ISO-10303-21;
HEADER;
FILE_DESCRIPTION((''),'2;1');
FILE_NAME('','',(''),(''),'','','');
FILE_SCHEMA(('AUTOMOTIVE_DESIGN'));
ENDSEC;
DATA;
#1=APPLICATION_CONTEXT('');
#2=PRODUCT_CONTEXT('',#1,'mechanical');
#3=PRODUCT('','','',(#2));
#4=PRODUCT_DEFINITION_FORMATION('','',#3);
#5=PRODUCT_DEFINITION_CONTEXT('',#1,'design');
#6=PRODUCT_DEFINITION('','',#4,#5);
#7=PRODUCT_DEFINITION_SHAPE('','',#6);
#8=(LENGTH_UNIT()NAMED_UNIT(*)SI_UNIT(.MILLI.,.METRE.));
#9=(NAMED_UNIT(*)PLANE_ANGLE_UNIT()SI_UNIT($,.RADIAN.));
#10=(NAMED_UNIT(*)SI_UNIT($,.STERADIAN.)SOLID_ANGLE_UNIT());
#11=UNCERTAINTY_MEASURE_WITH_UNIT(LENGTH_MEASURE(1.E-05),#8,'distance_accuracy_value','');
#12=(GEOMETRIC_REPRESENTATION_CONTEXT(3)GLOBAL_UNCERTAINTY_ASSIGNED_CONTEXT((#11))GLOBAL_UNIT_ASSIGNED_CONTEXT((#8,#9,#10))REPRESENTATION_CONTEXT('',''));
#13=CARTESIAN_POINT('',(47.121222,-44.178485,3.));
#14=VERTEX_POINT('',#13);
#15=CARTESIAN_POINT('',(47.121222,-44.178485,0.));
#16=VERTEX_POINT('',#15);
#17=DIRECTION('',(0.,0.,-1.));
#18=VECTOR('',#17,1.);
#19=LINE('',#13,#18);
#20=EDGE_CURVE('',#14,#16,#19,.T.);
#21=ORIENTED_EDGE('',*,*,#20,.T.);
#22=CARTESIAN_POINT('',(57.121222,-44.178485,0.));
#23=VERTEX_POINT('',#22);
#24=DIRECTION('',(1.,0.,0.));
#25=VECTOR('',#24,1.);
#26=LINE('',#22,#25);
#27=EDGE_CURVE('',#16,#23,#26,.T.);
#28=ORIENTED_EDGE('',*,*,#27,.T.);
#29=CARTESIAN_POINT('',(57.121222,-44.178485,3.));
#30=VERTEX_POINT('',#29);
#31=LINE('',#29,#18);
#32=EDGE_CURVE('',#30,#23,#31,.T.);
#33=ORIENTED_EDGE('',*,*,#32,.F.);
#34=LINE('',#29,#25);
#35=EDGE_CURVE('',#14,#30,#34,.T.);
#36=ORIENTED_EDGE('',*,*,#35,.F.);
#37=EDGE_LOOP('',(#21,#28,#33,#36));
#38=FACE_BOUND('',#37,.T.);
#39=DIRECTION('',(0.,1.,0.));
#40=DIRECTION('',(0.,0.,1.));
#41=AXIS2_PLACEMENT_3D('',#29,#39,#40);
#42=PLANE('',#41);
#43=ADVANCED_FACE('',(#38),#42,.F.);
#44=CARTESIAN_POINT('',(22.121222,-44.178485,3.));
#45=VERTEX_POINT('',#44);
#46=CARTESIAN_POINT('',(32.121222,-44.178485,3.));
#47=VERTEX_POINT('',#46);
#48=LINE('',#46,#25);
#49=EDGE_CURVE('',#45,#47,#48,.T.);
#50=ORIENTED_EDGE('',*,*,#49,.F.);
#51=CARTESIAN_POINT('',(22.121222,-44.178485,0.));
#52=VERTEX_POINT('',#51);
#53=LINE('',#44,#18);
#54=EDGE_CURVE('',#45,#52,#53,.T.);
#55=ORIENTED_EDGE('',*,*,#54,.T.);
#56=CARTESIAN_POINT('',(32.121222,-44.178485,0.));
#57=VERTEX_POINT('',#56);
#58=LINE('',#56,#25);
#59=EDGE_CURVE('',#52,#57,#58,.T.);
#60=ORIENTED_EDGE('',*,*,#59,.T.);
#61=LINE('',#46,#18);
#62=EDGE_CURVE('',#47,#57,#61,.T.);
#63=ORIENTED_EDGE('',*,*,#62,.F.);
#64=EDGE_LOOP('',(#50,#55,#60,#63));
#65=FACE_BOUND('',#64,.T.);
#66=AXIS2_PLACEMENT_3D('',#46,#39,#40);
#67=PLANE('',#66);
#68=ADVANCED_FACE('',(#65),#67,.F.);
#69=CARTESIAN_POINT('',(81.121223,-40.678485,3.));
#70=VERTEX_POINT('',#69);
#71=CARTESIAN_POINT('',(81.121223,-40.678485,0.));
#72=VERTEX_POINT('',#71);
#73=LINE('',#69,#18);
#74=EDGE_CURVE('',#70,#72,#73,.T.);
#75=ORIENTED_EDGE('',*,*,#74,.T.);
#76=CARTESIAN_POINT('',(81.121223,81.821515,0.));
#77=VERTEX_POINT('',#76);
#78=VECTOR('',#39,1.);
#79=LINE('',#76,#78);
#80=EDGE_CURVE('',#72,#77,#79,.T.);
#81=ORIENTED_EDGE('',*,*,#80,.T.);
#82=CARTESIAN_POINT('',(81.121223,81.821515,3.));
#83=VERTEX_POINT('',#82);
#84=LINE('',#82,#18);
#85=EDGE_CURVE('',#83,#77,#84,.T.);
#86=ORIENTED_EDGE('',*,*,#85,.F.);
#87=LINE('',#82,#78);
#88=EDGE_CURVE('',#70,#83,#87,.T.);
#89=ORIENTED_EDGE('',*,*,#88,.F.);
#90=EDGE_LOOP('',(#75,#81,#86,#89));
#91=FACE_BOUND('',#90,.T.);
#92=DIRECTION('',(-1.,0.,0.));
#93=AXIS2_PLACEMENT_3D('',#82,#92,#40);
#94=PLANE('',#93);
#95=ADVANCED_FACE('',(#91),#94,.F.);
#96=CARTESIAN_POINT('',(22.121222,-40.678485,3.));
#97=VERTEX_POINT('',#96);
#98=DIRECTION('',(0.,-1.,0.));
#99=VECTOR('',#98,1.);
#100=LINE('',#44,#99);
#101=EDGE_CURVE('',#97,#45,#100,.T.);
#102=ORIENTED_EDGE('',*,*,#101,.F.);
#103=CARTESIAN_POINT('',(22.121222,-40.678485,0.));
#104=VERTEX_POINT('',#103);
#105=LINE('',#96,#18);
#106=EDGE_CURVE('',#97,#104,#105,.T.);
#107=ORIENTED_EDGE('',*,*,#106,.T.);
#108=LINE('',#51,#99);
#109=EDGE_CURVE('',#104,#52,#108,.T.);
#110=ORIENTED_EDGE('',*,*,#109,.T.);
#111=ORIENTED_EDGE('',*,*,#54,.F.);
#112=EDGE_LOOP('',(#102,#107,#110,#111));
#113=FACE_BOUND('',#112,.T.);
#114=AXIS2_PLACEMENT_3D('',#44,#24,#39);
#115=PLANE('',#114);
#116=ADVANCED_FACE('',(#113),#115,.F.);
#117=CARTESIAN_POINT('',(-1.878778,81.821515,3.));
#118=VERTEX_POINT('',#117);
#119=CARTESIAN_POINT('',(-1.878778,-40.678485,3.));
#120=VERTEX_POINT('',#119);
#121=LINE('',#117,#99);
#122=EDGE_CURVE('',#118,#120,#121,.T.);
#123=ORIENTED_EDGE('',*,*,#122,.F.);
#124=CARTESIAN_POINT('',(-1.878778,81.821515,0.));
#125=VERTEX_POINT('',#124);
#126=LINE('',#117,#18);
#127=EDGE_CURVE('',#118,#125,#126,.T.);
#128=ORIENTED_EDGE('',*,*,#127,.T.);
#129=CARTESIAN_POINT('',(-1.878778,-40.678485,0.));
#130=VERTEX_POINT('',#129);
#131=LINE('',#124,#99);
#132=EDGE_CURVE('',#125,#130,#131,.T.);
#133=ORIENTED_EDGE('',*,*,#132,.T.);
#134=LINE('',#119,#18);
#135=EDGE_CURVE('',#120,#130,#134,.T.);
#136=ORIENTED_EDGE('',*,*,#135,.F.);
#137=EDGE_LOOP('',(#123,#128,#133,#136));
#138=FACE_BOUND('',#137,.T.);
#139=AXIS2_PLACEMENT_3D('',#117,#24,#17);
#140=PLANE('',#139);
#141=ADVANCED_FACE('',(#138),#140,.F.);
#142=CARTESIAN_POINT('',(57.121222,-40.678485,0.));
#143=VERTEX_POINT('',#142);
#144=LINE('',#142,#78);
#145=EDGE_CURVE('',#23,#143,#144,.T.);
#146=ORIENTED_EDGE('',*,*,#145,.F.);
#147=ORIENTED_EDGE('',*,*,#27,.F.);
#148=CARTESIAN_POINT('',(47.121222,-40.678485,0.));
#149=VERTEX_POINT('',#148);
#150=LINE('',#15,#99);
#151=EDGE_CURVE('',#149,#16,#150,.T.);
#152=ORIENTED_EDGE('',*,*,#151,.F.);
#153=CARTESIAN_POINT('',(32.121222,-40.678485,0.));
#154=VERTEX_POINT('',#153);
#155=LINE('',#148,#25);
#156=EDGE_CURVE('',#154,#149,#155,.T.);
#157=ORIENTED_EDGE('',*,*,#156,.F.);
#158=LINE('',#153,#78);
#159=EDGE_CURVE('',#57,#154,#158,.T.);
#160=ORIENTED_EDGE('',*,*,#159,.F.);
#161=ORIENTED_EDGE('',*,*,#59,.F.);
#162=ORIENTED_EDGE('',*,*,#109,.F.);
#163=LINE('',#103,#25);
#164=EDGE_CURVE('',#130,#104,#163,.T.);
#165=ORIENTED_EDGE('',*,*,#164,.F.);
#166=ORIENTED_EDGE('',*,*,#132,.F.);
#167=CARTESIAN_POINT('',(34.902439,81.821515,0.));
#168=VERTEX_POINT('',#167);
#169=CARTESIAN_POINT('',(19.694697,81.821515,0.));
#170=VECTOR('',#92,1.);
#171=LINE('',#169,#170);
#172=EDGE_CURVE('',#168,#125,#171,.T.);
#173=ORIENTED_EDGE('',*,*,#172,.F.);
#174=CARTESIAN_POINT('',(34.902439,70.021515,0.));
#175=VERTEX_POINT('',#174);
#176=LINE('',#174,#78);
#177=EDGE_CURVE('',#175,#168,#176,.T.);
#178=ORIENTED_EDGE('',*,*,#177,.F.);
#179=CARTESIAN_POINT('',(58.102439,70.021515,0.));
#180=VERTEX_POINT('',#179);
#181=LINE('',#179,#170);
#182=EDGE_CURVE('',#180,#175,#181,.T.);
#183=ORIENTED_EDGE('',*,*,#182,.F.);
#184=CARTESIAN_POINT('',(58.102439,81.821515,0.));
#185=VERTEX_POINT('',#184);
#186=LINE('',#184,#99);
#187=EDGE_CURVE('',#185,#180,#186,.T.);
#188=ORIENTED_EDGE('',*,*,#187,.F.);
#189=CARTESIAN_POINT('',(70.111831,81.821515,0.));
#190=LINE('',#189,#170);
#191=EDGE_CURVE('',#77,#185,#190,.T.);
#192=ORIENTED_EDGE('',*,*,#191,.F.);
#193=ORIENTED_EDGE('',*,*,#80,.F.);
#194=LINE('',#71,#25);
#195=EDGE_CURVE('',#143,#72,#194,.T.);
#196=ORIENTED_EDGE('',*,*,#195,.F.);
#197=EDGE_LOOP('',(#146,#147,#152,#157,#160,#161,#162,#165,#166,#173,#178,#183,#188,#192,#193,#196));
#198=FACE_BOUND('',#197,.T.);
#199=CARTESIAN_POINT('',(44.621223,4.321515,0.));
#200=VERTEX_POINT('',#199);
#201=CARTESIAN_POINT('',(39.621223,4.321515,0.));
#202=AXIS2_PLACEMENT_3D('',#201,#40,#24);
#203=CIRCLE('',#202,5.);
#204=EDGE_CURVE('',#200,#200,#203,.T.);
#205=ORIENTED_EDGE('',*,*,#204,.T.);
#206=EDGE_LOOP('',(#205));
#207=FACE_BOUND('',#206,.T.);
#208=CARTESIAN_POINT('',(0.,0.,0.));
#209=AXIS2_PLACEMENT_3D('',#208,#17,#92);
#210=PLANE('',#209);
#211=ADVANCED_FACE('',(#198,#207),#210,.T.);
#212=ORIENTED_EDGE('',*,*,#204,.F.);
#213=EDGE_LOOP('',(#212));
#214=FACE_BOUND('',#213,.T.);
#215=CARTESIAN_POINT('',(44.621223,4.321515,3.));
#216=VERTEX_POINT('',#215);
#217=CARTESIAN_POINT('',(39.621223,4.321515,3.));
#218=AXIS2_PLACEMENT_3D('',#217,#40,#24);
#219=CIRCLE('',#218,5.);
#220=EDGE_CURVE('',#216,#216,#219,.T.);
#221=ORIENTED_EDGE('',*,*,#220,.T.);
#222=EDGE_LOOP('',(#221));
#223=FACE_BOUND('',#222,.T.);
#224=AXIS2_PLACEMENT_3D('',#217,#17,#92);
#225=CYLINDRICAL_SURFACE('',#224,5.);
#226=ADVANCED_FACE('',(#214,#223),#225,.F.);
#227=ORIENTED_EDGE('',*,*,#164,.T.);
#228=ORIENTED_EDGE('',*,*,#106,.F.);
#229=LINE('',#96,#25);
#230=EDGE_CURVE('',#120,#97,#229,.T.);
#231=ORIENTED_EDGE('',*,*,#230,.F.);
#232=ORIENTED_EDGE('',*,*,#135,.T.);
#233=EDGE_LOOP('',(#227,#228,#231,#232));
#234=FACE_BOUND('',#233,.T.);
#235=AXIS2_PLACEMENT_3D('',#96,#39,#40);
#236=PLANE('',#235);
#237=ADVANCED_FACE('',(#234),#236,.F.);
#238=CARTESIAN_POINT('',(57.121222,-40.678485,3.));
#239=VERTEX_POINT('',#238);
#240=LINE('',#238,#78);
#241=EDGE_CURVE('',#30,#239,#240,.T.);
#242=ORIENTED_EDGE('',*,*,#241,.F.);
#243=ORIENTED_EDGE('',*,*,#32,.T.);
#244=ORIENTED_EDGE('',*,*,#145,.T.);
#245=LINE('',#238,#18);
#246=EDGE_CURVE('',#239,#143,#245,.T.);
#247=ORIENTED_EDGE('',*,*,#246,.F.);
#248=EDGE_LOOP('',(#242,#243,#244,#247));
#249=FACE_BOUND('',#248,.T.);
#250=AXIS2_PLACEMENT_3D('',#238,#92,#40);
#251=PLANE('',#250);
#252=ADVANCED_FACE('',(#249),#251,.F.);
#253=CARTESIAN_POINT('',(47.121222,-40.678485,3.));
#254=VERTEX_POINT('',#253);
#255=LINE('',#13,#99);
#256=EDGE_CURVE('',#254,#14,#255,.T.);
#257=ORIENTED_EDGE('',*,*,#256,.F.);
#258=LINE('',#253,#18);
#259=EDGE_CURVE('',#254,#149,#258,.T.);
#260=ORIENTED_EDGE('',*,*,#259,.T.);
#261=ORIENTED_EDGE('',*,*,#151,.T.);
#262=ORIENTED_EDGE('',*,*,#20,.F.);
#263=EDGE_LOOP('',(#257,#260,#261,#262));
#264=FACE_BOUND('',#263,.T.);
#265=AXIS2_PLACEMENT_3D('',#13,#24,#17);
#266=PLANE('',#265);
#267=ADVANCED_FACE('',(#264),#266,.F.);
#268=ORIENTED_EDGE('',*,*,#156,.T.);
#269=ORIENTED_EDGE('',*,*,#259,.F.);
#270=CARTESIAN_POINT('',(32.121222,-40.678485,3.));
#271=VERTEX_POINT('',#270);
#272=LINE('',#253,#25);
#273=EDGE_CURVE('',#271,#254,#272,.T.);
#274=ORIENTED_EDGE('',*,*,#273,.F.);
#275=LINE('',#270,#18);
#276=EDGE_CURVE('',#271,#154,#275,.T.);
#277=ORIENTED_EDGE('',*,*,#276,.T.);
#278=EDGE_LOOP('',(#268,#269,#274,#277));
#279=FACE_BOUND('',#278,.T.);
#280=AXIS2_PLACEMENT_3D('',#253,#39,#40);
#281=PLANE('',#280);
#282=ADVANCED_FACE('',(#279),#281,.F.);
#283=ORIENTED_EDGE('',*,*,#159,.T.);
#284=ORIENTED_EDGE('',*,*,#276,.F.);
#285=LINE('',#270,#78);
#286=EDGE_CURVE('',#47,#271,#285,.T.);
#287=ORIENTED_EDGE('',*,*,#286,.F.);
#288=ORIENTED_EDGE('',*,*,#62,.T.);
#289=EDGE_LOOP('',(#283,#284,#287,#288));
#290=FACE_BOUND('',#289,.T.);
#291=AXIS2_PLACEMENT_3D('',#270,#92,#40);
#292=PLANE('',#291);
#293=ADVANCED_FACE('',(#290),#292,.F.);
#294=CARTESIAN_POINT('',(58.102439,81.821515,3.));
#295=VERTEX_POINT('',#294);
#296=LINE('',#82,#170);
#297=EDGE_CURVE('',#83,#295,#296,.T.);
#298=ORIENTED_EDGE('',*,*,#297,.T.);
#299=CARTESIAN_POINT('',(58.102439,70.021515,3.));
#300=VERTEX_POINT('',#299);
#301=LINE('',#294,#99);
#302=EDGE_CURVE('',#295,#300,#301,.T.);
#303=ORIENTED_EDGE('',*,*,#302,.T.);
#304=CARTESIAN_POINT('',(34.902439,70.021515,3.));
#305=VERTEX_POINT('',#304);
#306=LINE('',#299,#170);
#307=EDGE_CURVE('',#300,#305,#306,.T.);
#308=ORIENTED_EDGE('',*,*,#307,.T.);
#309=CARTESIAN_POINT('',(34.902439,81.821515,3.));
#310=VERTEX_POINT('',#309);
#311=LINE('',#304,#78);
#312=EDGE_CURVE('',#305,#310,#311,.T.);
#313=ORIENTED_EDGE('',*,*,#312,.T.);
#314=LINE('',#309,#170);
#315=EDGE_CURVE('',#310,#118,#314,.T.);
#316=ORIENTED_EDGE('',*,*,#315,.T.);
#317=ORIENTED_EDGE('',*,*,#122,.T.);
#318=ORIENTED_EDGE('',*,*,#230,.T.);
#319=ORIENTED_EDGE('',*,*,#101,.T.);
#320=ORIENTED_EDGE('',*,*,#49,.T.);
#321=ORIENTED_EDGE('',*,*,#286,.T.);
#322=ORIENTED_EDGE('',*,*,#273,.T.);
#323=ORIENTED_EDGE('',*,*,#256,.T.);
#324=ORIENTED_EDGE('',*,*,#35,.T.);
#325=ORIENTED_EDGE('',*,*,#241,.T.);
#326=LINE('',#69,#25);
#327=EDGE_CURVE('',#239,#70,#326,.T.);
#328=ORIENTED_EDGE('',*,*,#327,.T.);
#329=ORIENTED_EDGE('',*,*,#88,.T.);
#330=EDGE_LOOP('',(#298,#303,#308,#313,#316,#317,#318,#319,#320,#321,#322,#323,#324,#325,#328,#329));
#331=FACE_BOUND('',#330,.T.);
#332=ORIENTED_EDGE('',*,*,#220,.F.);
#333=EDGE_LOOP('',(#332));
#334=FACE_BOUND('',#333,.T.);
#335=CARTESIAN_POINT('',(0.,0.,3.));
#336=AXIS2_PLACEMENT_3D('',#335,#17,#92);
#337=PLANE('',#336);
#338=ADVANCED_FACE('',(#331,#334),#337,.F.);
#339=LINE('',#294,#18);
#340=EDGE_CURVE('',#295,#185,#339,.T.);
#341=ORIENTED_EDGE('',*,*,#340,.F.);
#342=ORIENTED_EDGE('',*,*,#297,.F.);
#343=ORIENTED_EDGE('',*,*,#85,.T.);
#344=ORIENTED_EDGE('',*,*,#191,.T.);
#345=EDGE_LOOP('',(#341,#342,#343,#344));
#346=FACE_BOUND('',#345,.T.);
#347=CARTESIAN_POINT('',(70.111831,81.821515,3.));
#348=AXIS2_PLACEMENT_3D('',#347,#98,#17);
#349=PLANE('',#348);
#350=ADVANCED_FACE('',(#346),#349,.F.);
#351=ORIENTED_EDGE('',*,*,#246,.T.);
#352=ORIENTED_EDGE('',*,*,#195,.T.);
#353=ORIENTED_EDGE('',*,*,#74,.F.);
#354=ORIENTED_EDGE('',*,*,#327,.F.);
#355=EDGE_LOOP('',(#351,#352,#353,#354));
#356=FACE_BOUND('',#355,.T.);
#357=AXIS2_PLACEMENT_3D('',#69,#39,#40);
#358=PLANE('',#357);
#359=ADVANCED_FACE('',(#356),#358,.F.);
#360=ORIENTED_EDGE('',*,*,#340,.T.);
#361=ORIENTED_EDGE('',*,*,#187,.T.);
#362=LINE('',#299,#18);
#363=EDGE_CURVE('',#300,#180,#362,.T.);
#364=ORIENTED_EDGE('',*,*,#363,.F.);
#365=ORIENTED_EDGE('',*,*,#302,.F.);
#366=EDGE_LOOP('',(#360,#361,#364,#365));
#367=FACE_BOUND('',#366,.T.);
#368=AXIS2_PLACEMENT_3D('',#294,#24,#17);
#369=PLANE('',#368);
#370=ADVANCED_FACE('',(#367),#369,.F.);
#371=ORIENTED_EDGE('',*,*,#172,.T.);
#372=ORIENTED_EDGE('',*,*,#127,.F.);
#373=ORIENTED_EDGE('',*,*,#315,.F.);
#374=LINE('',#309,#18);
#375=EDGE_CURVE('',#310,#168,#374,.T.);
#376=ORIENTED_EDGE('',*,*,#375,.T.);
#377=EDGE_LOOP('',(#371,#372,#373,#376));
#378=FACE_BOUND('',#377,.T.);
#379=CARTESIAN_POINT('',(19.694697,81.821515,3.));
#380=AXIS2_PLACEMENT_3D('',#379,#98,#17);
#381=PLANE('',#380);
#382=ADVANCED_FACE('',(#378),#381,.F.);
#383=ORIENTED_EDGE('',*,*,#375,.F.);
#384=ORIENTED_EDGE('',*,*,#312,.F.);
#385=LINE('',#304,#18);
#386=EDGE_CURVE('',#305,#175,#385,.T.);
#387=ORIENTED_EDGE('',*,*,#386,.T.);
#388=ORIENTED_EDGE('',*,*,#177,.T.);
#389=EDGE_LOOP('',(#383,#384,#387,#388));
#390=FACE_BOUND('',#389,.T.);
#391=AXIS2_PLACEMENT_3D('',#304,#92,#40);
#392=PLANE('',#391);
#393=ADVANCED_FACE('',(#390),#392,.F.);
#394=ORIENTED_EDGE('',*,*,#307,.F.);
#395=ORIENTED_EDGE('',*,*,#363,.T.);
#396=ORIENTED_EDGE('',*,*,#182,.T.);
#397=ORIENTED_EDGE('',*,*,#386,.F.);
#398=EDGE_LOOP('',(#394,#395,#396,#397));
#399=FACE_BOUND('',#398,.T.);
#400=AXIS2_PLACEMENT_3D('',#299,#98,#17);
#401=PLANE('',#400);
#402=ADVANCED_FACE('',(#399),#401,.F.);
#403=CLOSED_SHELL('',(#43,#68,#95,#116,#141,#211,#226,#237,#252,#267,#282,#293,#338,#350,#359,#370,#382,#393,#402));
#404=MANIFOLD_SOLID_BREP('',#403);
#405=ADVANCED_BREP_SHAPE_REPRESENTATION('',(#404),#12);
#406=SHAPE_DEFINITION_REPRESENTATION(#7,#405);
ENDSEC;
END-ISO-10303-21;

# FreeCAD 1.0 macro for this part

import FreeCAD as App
import Part
import Sketcher

V = App.Vector
Q = App.Units.Quantity

doc = App.newDocument("Part")
body = doc.addObject("PartDesign::Body", "Body")

sketch1 = body.newObject("Sketcher::SketchObject", "Sketch")
sketch1.AttachmentSupport = (doc.getObject("XY_Plane"), [""])
sketch1.MapMode = "FlatFace"
sketch1.addGeometry([
    Part.LineSegment(V(81.1, 81.8, 0), V(58.1, 81.8, 0)),
    Part.LineSegment(V(58.1, 81.8, 0), V(58.1, 70, 0)),
    Part.LineSegment(V(58.1, 70, 0), V(34.9, 70, 0)),
    Part.LineSegment(V(34.9, 70, 0), V(34.9, 81.8, 0)),
    Part.LineSegment(V(34.9, 81.8, 0), V(-1.9, 81.8, 0)),
    Part.LineSegment(V(-1.9, 81.8, 0), V(-1.9, -40.7, 0)),
    Part.LineSegment(V(-1.9, -40.7, 0), V(22.1, -40.7, 0)),
    Part.LineSegment(V(22.1, -40.7, 0), V(22.1, -44.2, 0)),
    Part.LineSegment(V(22.1, -44.2, 0), V(32.1, -44.2, 0)),
    Part.LineSegment(V(32.1, -44.2, 0), V(32.1, -40.7, 0)),
    Part.LineSegment(V(32.1, -40.7, 0), V(47.1, -40.7, 0)),
    Part.LineSegment(V(47.1, -40.7, 0), V(47.1, -44.2, 0)),
    Part.LineSegment(V(47.1, -44.2, 0), V(57.1, -44.2, 0)),
    Part.LineSegment(V(57.1, -44.2, 0), V(57.1, -40.7, 0)),
    Part.LineSegment(V(57.1, -40.7, 0), V(81.1, -40.7, 0)),
    Part.LineSegment(V(81.1, -40.7, 0), V(81.1, 81.8, 0)),
    Part.Circle(V(39.6, 4.3, 0), V(0, 0, 1), 5),
], False)
sketch1.addConstraint([
    Sketcher.Constraint("Coincident", 0, 2, 1, 1),
    Sketcher.Constraint("Coincident", 1, 2, 2, 1),
    Sketcher.Constraint("Coincident", 2, 2, 3, 1),
    Sketcher.Constraint("Coincident", 3, 2, 4, 1),
    Sketcher.Constraint("Coincident", 4, 2, 5, 1),
    Sketcher.Constraint("Coincident", 5, 2, 6, 1),
    Sketcher.Constraint("Coincident", 6, 2, 7, 1),
    Sketcher.Constraint("Coincident", 7, 2, 8, 1),
    Sketcher.Constraint("Coincident", 8, 2, 9, 1),
    Sketcher.Constraint("Coincident", 9, 2, 10, 1),
    Sketcher.Constraint("Coincident", 10, 2, 11, 1),
    Sketcher.Constraint("Coincident", 11, 2, 12, 1),
    Sketcher.Constraint("Coincident", 12, 2, 13, 1),
    Sketcher.Constraint("Coincident", 13, 2, 14, 1),
    Sketcher.Constraint("Coincident", 14, 2, 15, 1),
    Sketcher.Constraint("Coincident", 15, 2, 0, 1),
    Sketcher.Constraint("Horizontal", 0),
    Sketcher.Constraint("Vertical", 1),
    Sketcher.Constraint("Horizontal", 2),
    Sketcher.Constraint("Vertical", 3),
    Sketcher.Constraint("Horizontal", 4),
    Sketcher.Constraint("Vertical", 5),
    Sketcher.Constraint("Horizontal", 6),
    Sketcher.Constraint("Vertical", 7),
    Sketcher.Constraint("Horizontal", 8),
    Sketcher.Constraint("Vertical", 9),
    Sketcher.Constraint("Horizontal", 10),
    Sketcher.Constraint("Vertical", 11),
    Sketcher.Constraint("Horizontal", 12),
    Sketcher.Constraint("Vertical", 13),
    Sketcher.Constraint("Horizontal", 14),
    Sketcher.Constraint("Vertical", 15),
    Sketcher.Constraint("Horizontal", 0, 2, 3, 2),
    Sketcher.Constraint("Horizontal", 6, 2, 9, 2),
    Sketcher.Constraint("Horizontal", 8, 2, 11, 2),
    Sketcher.Constraint("Horizontal", 10, 2, 13, 2),
    Sketcher.Constraint("Equal", 8, 12),
    Sketcher.Constraint("Equal", 6, 14),
    Sketcher.Constraint("Diameter", 16, Q("10 mm")),
    Sketcher.Constraint("DistanceX", 6, 1, 6, 2, Q("24 mm")),
    Sketcher.Constraint("DistanceX", 8, 1, 8, 2, Q("10 mm")),
    Sketcher.Constraint("DistanceX", 10, 1, 10, 2, Q("15 mm")),
    Sketcher.Constraint("DistanceX", 2, 2, 2, 1, Q("23.2 mm")),
    Sketcher.Constraint("DistanceY", 1, 2, 1, 1, Q("11.8 mm")),
    Sketcher.Constraint("DistanceY", 5, 2, 5, 1, Q("122.5 mm")),
    Sketcher.Constraint("DistanceY", 7, 2, 7, 1, Q("3.5 mm")),
    Sketcher.Constraint("DistanceY", 5, 2, 16, 3, Q("45 mm")),
    Sketcher.Constraint("DistanceX", 4, 2, 16, 3, Q("41.500001 mm")),
    Sketcher.Constraint("DistanceX", 0, 2, 0, 1, Q("23.018784 mm")),
    Sketcher.Constraint("DistanceX", -1, 1, 0, 2, Q("58.102439 mm")),
    Sketcher.Constraint("DistanceY", -1, 1, 16, 3, Q("4.321515 mm")),
])
pad1 = body.newObject("PartDesign::Pad", "Pad")
pad1.Profile = sketch1
pad1.Length = 3

doc.recompute()
